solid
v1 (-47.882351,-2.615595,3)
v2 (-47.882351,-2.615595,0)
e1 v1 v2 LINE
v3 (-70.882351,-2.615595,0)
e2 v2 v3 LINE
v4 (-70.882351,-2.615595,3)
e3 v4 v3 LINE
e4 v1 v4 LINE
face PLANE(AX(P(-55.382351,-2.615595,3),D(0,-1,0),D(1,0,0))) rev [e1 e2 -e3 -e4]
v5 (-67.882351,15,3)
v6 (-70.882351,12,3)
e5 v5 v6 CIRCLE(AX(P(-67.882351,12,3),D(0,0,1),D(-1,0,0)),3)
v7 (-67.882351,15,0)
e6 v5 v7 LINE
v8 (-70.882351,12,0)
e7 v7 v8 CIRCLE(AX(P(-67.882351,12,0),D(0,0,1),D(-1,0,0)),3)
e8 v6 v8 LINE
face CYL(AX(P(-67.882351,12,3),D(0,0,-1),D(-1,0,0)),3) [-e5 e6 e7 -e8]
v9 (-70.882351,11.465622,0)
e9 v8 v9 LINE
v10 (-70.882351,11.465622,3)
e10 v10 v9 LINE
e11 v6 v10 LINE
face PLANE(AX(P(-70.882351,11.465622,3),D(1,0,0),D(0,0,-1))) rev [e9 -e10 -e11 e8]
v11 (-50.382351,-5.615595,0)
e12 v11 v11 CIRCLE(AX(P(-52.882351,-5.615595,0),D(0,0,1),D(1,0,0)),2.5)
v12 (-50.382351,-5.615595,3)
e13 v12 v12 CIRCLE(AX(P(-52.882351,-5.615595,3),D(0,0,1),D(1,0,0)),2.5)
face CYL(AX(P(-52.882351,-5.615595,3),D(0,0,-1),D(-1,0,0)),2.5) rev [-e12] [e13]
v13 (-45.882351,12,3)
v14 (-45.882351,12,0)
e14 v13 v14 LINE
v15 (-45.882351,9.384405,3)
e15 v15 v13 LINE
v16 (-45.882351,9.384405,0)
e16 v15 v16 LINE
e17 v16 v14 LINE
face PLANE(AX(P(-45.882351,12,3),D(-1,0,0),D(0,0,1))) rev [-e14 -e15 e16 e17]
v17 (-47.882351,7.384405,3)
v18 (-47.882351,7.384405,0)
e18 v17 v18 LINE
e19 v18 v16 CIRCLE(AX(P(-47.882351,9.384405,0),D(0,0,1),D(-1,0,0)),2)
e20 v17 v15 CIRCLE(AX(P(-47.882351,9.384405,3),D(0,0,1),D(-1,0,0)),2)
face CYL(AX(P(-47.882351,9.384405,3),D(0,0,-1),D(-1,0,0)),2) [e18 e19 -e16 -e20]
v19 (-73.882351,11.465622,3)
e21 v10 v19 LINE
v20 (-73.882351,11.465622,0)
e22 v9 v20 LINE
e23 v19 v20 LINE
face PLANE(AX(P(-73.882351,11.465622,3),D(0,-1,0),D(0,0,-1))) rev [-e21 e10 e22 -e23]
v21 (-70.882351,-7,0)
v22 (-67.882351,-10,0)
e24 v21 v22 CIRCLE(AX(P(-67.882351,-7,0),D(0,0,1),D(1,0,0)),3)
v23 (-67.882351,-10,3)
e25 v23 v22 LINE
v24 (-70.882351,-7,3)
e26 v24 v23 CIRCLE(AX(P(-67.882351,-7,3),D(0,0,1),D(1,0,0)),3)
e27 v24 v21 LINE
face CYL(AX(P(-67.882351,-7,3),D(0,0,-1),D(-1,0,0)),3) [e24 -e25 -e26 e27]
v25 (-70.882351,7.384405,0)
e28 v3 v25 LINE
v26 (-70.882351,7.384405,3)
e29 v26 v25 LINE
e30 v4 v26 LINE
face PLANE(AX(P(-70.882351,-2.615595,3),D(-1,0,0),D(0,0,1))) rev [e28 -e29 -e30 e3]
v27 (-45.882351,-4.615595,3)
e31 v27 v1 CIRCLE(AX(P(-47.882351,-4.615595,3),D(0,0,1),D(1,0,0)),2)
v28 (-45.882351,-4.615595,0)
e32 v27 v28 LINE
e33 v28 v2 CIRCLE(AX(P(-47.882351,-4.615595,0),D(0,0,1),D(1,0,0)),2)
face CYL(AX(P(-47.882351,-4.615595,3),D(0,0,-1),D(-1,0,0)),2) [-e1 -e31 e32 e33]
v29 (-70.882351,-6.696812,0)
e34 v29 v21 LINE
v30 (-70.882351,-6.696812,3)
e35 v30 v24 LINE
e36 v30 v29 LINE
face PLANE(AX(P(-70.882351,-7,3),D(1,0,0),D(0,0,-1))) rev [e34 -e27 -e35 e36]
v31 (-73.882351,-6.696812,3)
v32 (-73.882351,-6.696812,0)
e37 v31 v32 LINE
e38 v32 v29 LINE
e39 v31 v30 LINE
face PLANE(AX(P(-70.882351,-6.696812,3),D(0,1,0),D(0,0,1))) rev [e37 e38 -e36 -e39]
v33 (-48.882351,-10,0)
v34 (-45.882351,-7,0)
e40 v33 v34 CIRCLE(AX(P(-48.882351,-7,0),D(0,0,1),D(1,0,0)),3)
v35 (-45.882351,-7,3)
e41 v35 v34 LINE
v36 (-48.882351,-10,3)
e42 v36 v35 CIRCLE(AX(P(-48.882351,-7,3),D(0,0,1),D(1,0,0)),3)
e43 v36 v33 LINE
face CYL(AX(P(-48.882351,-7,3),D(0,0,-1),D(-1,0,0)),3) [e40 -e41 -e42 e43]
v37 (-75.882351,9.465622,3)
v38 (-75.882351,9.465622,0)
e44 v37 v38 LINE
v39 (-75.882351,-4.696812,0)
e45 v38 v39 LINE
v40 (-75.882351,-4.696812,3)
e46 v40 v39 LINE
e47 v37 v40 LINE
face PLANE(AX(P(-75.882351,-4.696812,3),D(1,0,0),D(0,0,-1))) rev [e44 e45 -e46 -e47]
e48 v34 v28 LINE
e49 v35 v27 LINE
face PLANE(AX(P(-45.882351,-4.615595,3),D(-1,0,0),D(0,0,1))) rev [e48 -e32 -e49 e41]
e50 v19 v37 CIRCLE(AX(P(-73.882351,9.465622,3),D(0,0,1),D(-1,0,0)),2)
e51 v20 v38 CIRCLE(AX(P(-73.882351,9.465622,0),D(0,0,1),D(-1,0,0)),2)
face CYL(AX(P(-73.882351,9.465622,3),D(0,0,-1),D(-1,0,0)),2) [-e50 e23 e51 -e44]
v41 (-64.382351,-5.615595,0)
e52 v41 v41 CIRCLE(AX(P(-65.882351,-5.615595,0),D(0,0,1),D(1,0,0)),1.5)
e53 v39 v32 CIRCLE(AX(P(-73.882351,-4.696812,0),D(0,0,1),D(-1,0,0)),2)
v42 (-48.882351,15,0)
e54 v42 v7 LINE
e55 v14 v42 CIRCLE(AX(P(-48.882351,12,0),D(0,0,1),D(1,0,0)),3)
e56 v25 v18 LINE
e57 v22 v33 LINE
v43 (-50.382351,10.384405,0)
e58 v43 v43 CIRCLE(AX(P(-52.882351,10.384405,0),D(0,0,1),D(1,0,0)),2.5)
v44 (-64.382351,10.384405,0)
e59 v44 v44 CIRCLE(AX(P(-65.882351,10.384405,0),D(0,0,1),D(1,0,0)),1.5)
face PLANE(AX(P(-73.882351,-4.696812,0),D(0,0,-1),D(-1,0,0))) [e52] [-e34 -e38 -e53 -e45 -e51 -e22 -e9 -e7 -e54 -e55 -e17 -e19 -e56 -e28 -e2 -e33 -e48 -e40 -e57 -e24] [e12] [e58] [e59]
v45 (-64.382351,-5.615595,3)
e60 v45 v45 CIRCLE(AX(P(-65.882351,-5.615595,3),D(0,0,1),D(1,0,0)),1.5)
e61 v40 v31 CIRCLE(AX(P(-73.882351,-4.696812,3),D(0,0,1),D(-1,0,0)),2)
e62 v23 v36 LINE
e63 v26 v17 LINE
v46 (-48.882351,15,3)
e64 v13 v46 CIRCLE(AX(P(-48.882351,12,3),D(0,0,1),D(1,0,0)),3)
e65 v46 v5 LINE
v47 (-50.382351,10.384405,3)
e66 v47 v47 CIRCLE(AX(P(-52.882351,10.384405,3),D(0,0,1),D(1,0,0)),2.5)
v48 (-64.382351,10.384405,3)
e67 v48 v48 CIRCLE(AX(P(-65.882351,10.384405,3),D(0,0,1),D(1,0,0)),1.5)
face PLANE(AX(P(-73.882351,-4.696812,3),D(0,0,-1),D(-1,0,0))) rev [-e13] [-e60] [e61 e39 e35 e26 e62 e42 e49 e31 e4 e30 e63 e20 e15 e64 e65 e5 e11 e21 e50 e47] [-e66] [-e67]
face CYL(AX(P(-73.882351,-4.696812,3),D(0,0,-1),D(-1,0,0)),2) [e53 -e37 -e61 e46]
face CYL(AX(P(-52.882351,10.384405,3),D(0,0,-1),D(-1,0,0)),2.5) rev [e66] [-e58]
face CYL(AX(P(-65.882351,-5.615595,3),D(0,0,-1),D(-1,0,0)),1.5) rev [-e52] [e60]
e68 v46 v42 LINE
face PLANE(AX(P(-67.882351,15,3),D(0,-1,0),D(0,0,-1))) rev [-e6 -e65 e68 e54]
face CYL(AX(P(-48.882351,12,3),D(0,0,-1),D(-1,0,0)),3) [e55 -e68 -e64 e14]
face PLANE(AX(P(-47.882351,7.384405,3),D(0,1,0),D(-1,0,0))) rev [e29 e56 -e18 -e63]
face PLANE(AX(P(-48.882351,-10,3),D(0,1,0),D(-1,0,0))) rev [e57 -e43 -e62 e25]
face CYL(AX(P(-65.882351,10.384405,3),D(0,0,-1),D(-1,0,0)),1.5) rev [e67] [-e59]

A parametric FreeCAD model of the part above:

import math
import FreeCAD as App
import Part
import Sketcher

V = App.Vector

doc = App.newDocument("Part")
body = doc.addObject("PartDesign::Body", "Body")

sketch1 = body.newObject("Sketcher::SketchObject", "Sketch")
sketch1.AttachmentSupport = (doc.getObject("XY_Plane"), [""])
sketch1.MapMode = "FlatFace"
sketch1.addGeometry(Part.LineSegment(V(-47.88, -2.62, 0), V(-70.88, -2.62, 0)), False)
sketch1.addGeometry(Part.LineSegment(V(-70.88, -2.62, 0), V(-70.88, 7.38, 0)), False)
sketch1.addGeometry(Part.LineSegment(V(-70.88, 7.38, 0), V(-47.88, 7.38, 0)), False)
sketch1.addGeometry(Part.ArcOfCircle(Part.Circle(V(-47.88, 9.38, 0), V(0, 0, 1), 2), math.radians(-90), math.radians(0)), False)
sketch1.addGeometry(Part.LineSegment(V(-45.88, 9.38, 0), V(-45.88, 12, 0)), False)
sketch1.addGeometry(Part.ArcOfCircle(Part.Circle(V(-48.88, 12, 0), V(0, 0, 1), 3), math.radians(0), math.radians(90)), False)
sketch1.addGeometry(Part.LineSegment(V(-48.88, 15, 0), V(-67.88, 15, 0)), False)
sketch1.addGeometry(Part.ArcOfCircle(Part.Circle(V(-67.88, 12, 0), V(0, 0, 1), 3), math.radians(90), math.radians(180)), False)
sketch1.addGeometry(Part.LineSegment(V(-70.88, 12, 0), V(-70.88, 11.47, 0)), False)
sketch1.addGeometry(Part.LineSegment(V(-70.88, 11.47, 0), V(-73.88, 11.47, 0)), False)
sketch1.addGeometry(Part.ArcOfCircle(Part.Circle(V(-73.88, 9.47, 0), V(0, 0, 1), 2), math.radians(90), math.radians(180)), False)
sketch1.addGeometry(Part.LineSegment(V(-75.88, 9.47, 0), V(-75.88, -4.7, 0)), False)
sketch1.addGeometry(Part.ArcOfCircle(Part.Circle(V(-73.88, -4.7, 0), V(0, 0, 1), 2), math.radians(-180), math.radians(-90)), False)
sketch1.addGeometry(Part.LineSegment(V(-73.88, -6.7, 0), V(-70.88, -6.7, 0)), False)
sketch1.addGeometry(Part.LineSegment(V(-70.88, -6.7, 0), V(-70.88, -7, 0)), False)
sketch1.addGeometry(Part.ArcOfCircle(Part.Circle(V(-67.88, -7, 0), V(0, 0, 1), 3), math.radians(180), math.radians(270)), False)
sketch1.addGeometry(Part.LineSegment(V(-67.88, -10, 0), V(-48.88, -10, 0)), False)
sketch1.addGeometry(Part.ArcOfCircle(Part.Circle(V(-48.88, -7, 0), V(0, 0, 1), 3), math.radians(-90), math.radians(0)), False)
sketch1.addGeometry(Part.LineSegment(V(-45.88, -7, 0), V(-45.88, -4.62, 0)), False)
sketch1.addGeometry(Part.ArcOfCircle(Part.Circle(V(-47.88, -4.62, 0), V(0, 0, 1), 2), math.radians(0), math.radians(90)), False)
sketch1.addGeometry(Part.Circle(V(-65.88, -5.62, 0), V(0, 0, 1), 1.5), False)
sketch1.addGeometry(Part.Circle(V(-52.88, -5.62, 0), V(0, 0, 1), 2.5), False)
sketch1.addGeometry(Part.Circle(V(-65.88, 10.38, 0), V(0, 0, 1), 1.5), False)
sketch1.addGeometry(Part.Circle(V(-52.88, 10.38, 0), V(0, 0, 1), 2.5), False)
sketch1.addConstraint(Sketcher.Constraint("Coincident", 0, 2, 1, 1))
sketch1.addConstraint(Sketcher.Constraint("Coincident", 1, 2, 2, 1))
sketch1.addConstraint(Sketcher.Constraint("Tangent", 2, 2, 3, 1))
sketch1.addConstraint(Sketcher.Constraint("Tangent", 3, 2, 4, 1))
sketch1.addConstraint(Sketcher.Constraint("Tangent", 4, 2, 5, 1))
sketch1.addConstraint(Sketcher.Constraint("Tangent", 5, 2, 6, 1))
sketch1.addConstraint(Sketcher.Constraint("Tangent", 6, 2, 7, 1))
sketch1.addConstraint(Sketcher.Constraint("Tangent", 7, 2, 8, 1))
sketch1.addConstraint(Sketcher.Constraint("Coincident", 8, 2, 9, 1))
sketch1.addConstraint(Sketcher.Constraint("Tangent", 9, 2, 10, 1))
sketch1.addConstraint(Sketcher.Constraint("Tangent", 10, 2, 11, 1))
sketch1.addConstraint(Sketcher.Constraint("Tangent", 11, 2, 12, 1))
sketch1.addConstraint(Sketcher.Constraint("Tangent", 12, 2, 13, 1))
sketch1.addConstraint(Sketcher.Constraint("Coincident", 13, 2, 14, 1))
sketch1.addConstraint(Sketcher.Constraint("Tangent", 14, 2, 15, 1))
sketch1.addConstraint(Sketcher.Constraint("Tangent", 15, 2, 16, 1))
sketch1.addConstraint(Sketcher.Constraint("Tangent", 16, 2, 17, 1))
sketch1.addConstraint(Sketcher.Constraint("Tangent", 17, 2, 18, 1))
sketch1.addConstraint(Sketcher.Constraint("Tangent", 18, 2, 19, 1))
sketch1.addConstraint(Sketcher.Constraint("Tangent", 19, 2, 0, 1))
sketch1.addConstraint(Sketcher.Constraint("Horizontal", 0))
sketch1.addConstraint(Sketcher.Constraint("Vertical", 1))
sketch1.addConstraint(Sketcher.Constraint("Horizontal", 2))
sketch1.addConstraint(Sketcher.Constraint("Vertical", 4))
sketch1.addConstraint(Sketcher.Constraint("Horizontal", 6))
sketch1.addConstraint(Sketcher.Constraint("Vertical", 8))
sketch1.addConstraint(Sketcher.Constraint("Horizontal", 9))
sketch1.addConstraint(Sketcher.Constraint("Vertical", 11))
sketch1.addConstraint(Sketcher.Constraint("Horizontal", 13))
sketch1.addConstraint(Sketcher.Constraint("Vertical", 14))
sketch1.addConstraint(Sketcher.Constraint("Horizontal", 16))
sketch1.addConstraint(Sketcher.Constraint("Vertical", 18))
sketch1.addConstraint(Sketcher.Constraint("Equal", 5, 7))
sketch1.addConstraint(Sketcher.Constraint("Equal", 3, 10))
sketch1.addConstraint(Sketcher.Constraint("Equal", 10, 12))
sketch1.addConstraint(Sketcher.Constraint("Equal", 7, 15))
sketch1.addConstraint(Sketcher.Constraint("Equal", 15, 17))
sketch1.addConstraint(Sketcher.Constraint("Equal", 12, 19))
sketch1.addConstraint(Sketcher.Constraint("Equal", 20, 22))
sketch1.addConstraint(Sketcher.Constraint("Equal", 21, 23))
sketch1.addConstraint(Sketcher.Constraint("Horizontal", 20, 3, 21, 3))
sketch1.addConstraint(Sketcher.Constraint("Horizontal", 22, 3, 23, 3))
sketch1.addConstraint(Sketcher.Constraint("Vertical", 7, 3, 15, 3))
sketch1.addConstraint(Sketcher.Constraint("Vertical", 5, 3, 17, 3))
sketch1.addConstraint(Sketcher.Constraint("Vertical", 20, 3, 22, 3))
sketch1.addConstraint(Sketcher.Constraint("Vertical", 21, 3, 23, 3))
sketch1.addConstraint(Sketcher.Constraint("Vertical", 1, 2, 7, 2))
sketch1.addConstraint(Sketcher.Constraint("Diameter", 20, 3.0))
sketch1.addConstraint(Sketcher.Constraint("Diameter", 21, 5.0))
sketch1.addConstraint(Sketcher.Constraint("Radius", 3, 2.0))
sketch1.addConstraint(Sketcher.Constraint("Radius", 5, 3.0))
sketch1.addConstraint(Sketcher.Constraint("DistanceX", 0, 2, 0, 1, 23.0))
sketch1.addConstraint(Sketcher.Constraint("DistanceX", 9, 2, 9, 1, 3.0))
sketch1.addConstraint(Sketcher.Constraint("DistanceY", 1, 1, 1, 2, 10.0))
sketch1.addConstraint(Sketcher.Constraint("DistanceY", -1, 1, 5, 3, 12.0))
sketch1.addConstraint(Sketcher.Constraint("DistanceY", 15, 3, -1, 1, 7.0))
sketch1.addConstraint(Sketcher.Constraint("DistanceX", 15, 3, 20, 3, 2.0))
sketch1.addConstraint(Sketcher.Constraint("DistanceX", 21, 3, 17, 3, 4.0))
sketch1.addConstraint(Sketcher.Constraint("DistanceY", 21, 3, 19, 3, 1.0))
sketch1.addConstraint(Sketcher.Constraint("DistanceY", 20, 3, 22, 3, 16.0))
sketch1.addConstraint(Sketcher.Constraint("DistanceY", 8, 2, 8, 1, 0.534378))
sketch1.addConstraint(Sketcher.Constraint("DistanceY", 14, 2, 14, 1, 0.303188))
sketch1.addConstraint(Sketcher.Constraint("DistanceY", 4, 1, 4, 2, 2.615595))
sketch1.addConstraint(Sketcher.Constraint("DistanceX", 3, 3, -1, 1, 47.882351))
pad1 = body.newObject("PartDesign::Pad", "Pad")
pad1.Profile = sketch1
pad1.Length = 3

doc.recompute()
